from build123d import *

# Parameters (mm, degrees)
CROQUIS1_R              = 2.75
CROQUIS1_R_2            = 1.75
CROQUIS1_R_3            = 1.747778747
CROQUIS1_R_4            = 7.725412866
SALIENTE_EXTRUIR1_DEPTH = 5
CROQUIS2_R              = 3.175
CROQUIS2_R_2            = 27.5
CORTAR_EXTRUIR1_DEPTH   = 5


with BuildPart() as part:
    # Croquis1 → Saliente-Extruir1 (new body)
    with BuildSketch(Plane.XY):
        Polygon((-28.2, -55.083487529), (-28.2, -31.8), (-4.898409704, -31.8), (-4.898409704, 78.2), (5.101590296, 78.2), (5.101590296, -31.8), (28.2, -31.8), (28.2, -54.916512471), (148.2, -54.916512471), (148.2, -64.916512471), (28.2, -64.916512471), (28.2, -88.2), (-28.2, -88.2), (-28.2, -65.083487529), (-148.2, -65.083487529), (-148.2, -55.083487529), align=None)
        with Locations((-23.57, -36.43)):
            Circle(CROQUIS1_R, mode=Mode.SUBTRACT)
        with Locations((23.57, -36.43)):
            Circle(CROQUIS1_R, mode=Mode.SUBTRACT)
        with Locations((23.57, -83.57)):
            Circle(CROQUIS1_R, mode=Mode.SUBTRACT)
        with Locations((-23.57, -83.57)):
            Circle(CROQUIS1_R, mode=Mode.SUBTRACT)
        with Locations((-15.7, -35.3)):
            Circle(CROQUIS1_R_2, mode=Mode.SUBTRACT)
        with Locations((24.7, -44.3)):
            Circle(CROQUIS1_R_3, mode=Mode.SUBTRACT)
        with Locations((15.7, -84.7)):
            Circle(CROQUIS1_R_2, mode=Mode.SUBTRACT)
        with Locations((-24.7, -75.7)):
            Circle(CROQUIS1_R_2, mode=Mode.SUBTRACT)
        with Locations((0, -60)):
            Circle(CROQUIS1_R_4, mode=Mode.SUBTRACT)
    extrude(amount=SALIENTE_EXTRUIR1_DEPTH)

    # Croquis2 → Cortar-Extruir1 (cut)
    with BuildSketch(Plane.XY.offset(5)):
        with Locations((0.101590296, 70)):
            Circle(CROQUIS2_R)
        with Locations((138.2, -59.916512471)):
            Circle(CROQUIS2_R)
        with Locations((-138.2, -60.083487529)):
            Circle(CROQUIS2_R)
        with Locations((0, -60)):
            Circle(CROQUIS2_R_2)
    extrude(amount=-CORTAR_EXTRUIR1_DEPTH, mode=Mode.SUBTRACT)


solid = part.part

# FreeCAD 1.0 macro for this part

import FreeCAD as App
import Part
import Sketcher
Q = App.Units.Quantity

doc = App.newDocument("Part")
body = doc.addObject("PartDesign::Body", "Body")

sketch1 = doc.addObject("Sketcher::SketchObject", "Sketch")
body.addObject(sketch1)
sketch1.AttachmentSupport = (doc.XY_Plane, [""])
sketch1.MapMode = "FlatFace"
sketch1.addGeometry(Part.LineSegment(App.Vector(-28.2, -31.8, 0), App.Vector(-28.2, -55.1, 0)), False)
sketch1.addGeometry(Part.LineSegment(App.Vector(-28.2, -55.1, 0), App.Vector(-148.2, -55.1, 0)), False)
sketch1.addGeometry(Part.LineSegment(App.Vector(-148.2, -55.1, 0), App.Vector(-148.2, -65.1, 0)), False)
sketch1.addGeometry(Part.LineSegment(App.Vector(-148.2, -65.1, 0), App.Vector(-28.2, -65.1, 0)), False)
sketch1.addGeometry(Part.LineSegment(App.Vector(-28.2, -65.1, 0), App.Vector(-28.2, -88.2, 0)), False)
sketch1.addGeometry(Part.LineSegment(App.Vector(-28.2, -88.2, 0), App.Vector(28.2, -88.2, 0)), False)
sketch1.addGeometry(Part.LineSegment(App.Vector(28.2, -88.2, 0), App.Vector(28.2, -64.9, 0)), False)
sketch1.addGeometry(Part.LineSegment(App.Vector(28.2, -64.9, 0), App.Vector(148.2, -64.9, 0)), False)
sketch1.addGeometry(Part.LineSegment(App.Vector(148.2, -64.9, 0), App.Vector(148.2, -54.9, 0)), False)
sketch1.addGeometry(Part.LineSegment(App.Vector(148.2, -54.9, 0), App.Vector(28.2, -54.9, 0)), False)
sketch1.addGeometry(Part.LineSegment(App.Vector(28.2, -54.9, 0), App.Vector(28.2, -31.8, 0)), False)
sketch1.addGeometry(Part.LineSegment(App.Vector(28.2, -31.8, 0), App.Vector(5.1, -31.8, 0)), False)
sketch1.addGeometry(Part.LineSegment(App.Vector(5.1, -31.8, 0), App.Vector(5.1, 78.2, 0)), False)
sketch1.addGeometry(Part.LineSegment(App.Vector(5.1, 78.2, 0), App.Vector(-4.9, 78.2, 0)), False)
sketch1.addGeometry(Part.LineSegment(App.Vector(-4.9, 78.2, 0), App.Vector(-4.9, -31.8, 0)), False)
sketch1.addGeometry(Part.LineSegment(App.Vector(-4.9, -31.8, 0), App.Vector(-28.2, -31.8, 0)), False)
sketch1.addGeometry(Part.Circle(App.Vector(23.6, -83.6, 0), App.Vector(0, 0, 1), 2.8), False)
sketch1.addGeometry(Part.Circle(App.Vector(15.7, -84.7, 0), App.Vector(0, 0, 1), 1.8), False)
sketch1.addGeometry(Part.Circle(App.Vector(0, -60, 0), App.Vector(0, 0, 1), 7.7), False)
sketch1.addGeometry(Part.Circle(App.Vector(-23.6, -83.6, 0), App.Vector(0, 0, 1), 2.8), False)
sketch1.addGeometry(Part.Circle(App.Vector(-24.7, -75.7, 0), App.Vector(0, 0, 1), 1.8), False)
sketch1.addGeometry(Part.Circle(App.Vector(24.7, -44.3, 0), App.Vector(0, 0, 1), 1.7), False)
sketch1.addGeometry(Part.Circle(App.Vector(23.6, -36.4, 0), App.Vector(0, 0, 1), 2.8), False)
sketch1.addGeometry(Part.Circle(App.Vector(-15.7, -35.3, 0), App.Vector(0, 0, 1), 1.8), False)
sketch1.addGeometry(Part.Circle(App.Vector(-23.6, -36.4, 0), App.Vector(0, 0, 1), 2.8), False)
sketch1.addConstraint(Sketcher.Constraint("Coincident", 0, 2, 1, 1))
sketch1.addConstraint(Sketcher.Constraint("Coincident", 1, 2, 2, 1))
sketch1.addConstraint(Sketcher.Constraint("Coincident", 2, 2, 3, 1))
sketch1.addConstraint(Sketcher.Constraint("Coincident", 3, 2, 4, 1))
sketch1.addConstraint(Sketcher.Constraint("Coincident", 4, 2, 5, 1))
sketch1.addConstraint(Sketcher.Constraint("Coincident", 5, 2, 6, 1))
sketch1.addConstraint(Sketcher.Constraint("Coincident", 6, 2, 7, 1))
sketch1.addConstraint(Sketcher.Constraint("Coincident", 7, 2, 8, 1))
sketch1.addConstraint(Sketcher.Constraint("Coincident", 8, 2, 9, 1))
sketch1.addConstraint(Sketcher.Constraint("Coincident", 9, 2, 10, 1))
sketch1.addConstraint(Sketcher.Constraint("Coincident", 10, 2, 11, 1))
sketch1.addConstraint(Sketcher.Constraint("Coincident", 11, 2, 12, 1))
sketch1.addConstraint(Sketcher.Constraint("Coincident", 12, 2, 13, 1))
sketch1.addConstraint(Sketcher.Constraint("Coincident", 13, 2, 14, 1))
sketch1.addConstraint(Sketcher.Constraint("Coincident", 14, 2, 15, 1))
sketch1.addConstraint(Sketcher.Constraint("Coincident", 15, 2, 0, 1))
sketch1.addConstraint(Sketcher.Constraint("Vertical", 0))
sketch1.addConstraint(Sketcher.Constraint("Horizontal", 1))
sketch1.addConstraint(Sketcher.Constraint("Vertical", 2))
sketch1.addConstraint(Sketcher.Constraint("Horizontal", 3))
sketch1.addConstraint(Sketcher.Constraint("Vertical", 4))
sketch1.addConstraint(Sketcher.Constraint("Horizontal", 5))
sketch1.addConstraint(Sketcher.Constraint("Vertical", 6))
sketch1.addConstraint(Sketcher.Constraint("Horizontal", 7))
sketch1.addConstraint(Sketcher.Constraint("Vertical", 8))
sketch1.addConstraint(Sketcher.Constraint("Horizontal", 9))
sketch1.addConstraint(Sketcher.Constraint("Vertical", 10))
sketch1.addConstraint(Sketcher.Constraint("Horizontal", 11))
sketch1.addConstraint(Sketcher.Constraint("Vertical", 12))
sketch1.addConstraint(Sketcher.Constraint("Horizontal", 13))
sketch1.addConstraint(Sketcher.Constraint("Vertical", 14))
sketch1.addConstraint(Sketcher.Constraint("Horizontal", 15))
sketch1.addConstraint(Sketcher.Constraint("Equal", 16, 19))
sketch1.addConstraint(Sketcher.Constraint("Equal", 17, 20))
sketch1.addConstraint(Sketcher.Constraint("Equal", 19, 22))
sketch1.addConstraint(Sketcher.Constraint("Equal", 20, 23))
sketch1.addConstraint(Sketcher.Constraint("Equal", 22, 24))
sketch1.addConstraint(Sketcher.Constraint("Symmetric", 16, 3, 19, 3, -2))
sketch1.addConstraint(Sketcher.Constraint("Symmetric", 22, 3, 24, 3, -2))
sketch1.addConstraint(Sketcher.Constraint("Symmetric", 10, 2, 15, 2, -2))
sketch1.addConstraint(Sketcher.Constraint("PointOnObject", 18, 3, -2))
sketch1.addConstraint(Sketcher.Constraint("Vertical", 16, 3, 22, 3))
sketch1.addConstraint(Sketcher.Constraint("Vertical", 0, 2, 3, 2))
sketch1.addConstraint(Sketcher.Constraint("Vertical", 6, 2, 9, 2))
sketch1.addConstraint(Sketcher.Constraint("Equal", 3, 7))
sketch1.addConstraint(Sketcher.Constraint("Equal", 13, 2))
sketch1.addConstraint(Sketcher.Constraint("Equal", 0, 6))
sketch1.addConstraint(Sketcher.Constraint("Equal", 2, 8))
sketch1.addConstraint(Sketcher.Constraint("Diameter", 16, Q("5.5 mm")))
sketch1.addConstraint(Sketcher.Constraint("Diameter", 17, Q("3.5 mm")))
sketch1.addConstraint(Sketcher.Constraint("DistanceX", 1, 2, 1, 1, Q("120 mm")))
sketch1.addConstraint(Sketcher.Constraint("DistanceX", 13, 2, 13, 1, Q("10 mm")))
sketch1.addConstraint(Sketcher.Constraint("DistanceY", 12, 1, 12, 2, Q("110 mm")))
sketch1.addConstraint(Sketcher.Constraint("DistanceX", 5, 1, 5, 2, Q("56.4 mm")))
sketch1.addConstraint(Sketcher.Constraint("DistanceY", 18, 3, -1, 1, Q("60 mm")))
sketch1.addConstraint(Sketcher.Constraint("DistanceY", 17, 3, 20, 3, Q("9 mm")))
sketch1.addConstraint(Sketcher.Constraint("DistanceX", 17, 3, 21, 3, Q("9 mm")))
sketch1.addConstraint(Sketcher.Constraint("DistanceY", 21, 3, 23, 3, Q("9 mm")))
sketch1.addConstraint(Sketcher.Constraint("DistanceX", 20, 3, 23, 3, Q("9 mm")))
sketch1.addConstraint(Sketcher.Constraint("DistanceX", -1, 1, 17, 3, Q("15.7 mm")))
sketch1.addConstraint(Sketcher.Constraint("DistanceY", 17, 3, -1, 1, Q("84.7 mm")))
sketch1.addConstraint(Sketcher.Constraint("DistanceX", 20, 3, -1, 1, Q("24.7 mm")))
sketch1.addConstraint(Sketcher.Constraint("DistanceY", 21, 3, -1, 1, Q("44.3 mm")))
sketch1.addConstraint(Sketcher.Constraint("DistanceY", 4, 2, -1, 1, Q("88.2 mm")))
sketch1.addConstraint(Sketcher.Constraint("DistanceY", 10, 2, -1, 1, Q("31.8 mm")))
sketch1.addConstraint(Sketcher.Constraint("DistanceX", -1, 1, 16, 3, Q("23.57 mm")))
sketch1.addConstraint(Sketcher.Constraint("DistanceY", 16, 3, -1, 1, Q("83.57 mm")))
sketch1.addConstraint(Sketcher.Constraint("DistanceY", 22, 3, -1, 1, Q("36.43 mm")))
sketch1.addConstraint(Sketcher.Constraint("Diameter", 18, Q("15.450826 mm")))
sketch1.addConstraint(Sketcher.Constraint("Diameter", 21, Q("3.495557 mm")))
sketch1.addConstraint(Sketcher.Constraint("DistanceX", 11, 2, 11, 1, Q("23.09841 mm")))
sketch1.addConstraint(Sketcher.Constraint("DistanceY", 0, 2, 0, 1, Q("23.283488 mm")))
pad1 = doc.addObject("PartDesign::Pad", "Pad")
body.addObject(pad1)
pad1.Profile = sketch1
pad1.Length = 5

sketch2 = doc.addObject("Sketcher::SketchObject", "Sketch001")
body.addObject(sketch2)
sketch2.AttachmentSupport = (doc.XY_Plane, [""])
sketch2.MapMode = "FlatFace"
sketch2.AttachmentOffset = App.Placement(App.Vector(0, 0, 5), App.Rotation())
sketch2.addGeometry(Part.Circle(App.Vector(0.1, 70, 0), App.Vector(0, 0, 1), 3.2), False)
sketch2.addGeometry(Part.Circle(App.Vector(138.2, -59.9, 0), App.Vector(0, 0, 1), 3.2), False)
sketch2.addGeometry(Part.Circle(App.Vector(-138.2, -60.1, 0), App.Vector(0, 0, 1), 3.2), False)
sketch2.addGeometry(Part.Circle(App.Vector(0, -60, 0), App.Vector(0, 0, 1), 27.5), False)
sketch2.addConstraint(Sketcher.Constraint("Equal", 0, 1))
sketch2.addConstraint(Sketcher.Constraint("Equal", 1, 2))
sketch2.addConstraint(Sketcher.Constraint("PointOnObject", 3, 3, -2))
sketch2.addConstraint(Sketcher.Constraint("Diameter", 3, Q("55 mm")))
sketch2.addConstraint(Sketcher.Constraint("Diameter", 0, Q("6.35 mm")))
sketch2.addConstraint(Sketcher.Constraint("DistanceY", -1, 1, 0, 3, Q("70 mm")))
sketch2.addConstraint(Sketcher.Constraint("DistanceY", 3, 3, -1, 1, Q("60 mm")))
sketch2.addConstraint(Sketcher.Constraint("DistanceX", -1, 1, 1, 3, Q("138.2 mm")))
sketch2.addConstraint(Sketcher.Constraint("DistanceX", 2, 3, -1, 1, Q("138.2 mm")))
sketch2.addConstraint(Sketcher.Constraint("DistanceX", -1, 1, 0, 3, Q("0.10159 mm")))
sketch2.addConstraint(Sketcher.Constraint("DistanceY", 1, 3, -1, 1, Q("59.916512 mm")))
sketch2.addConstraint(Sketcher.Constraint("DistanceY", 2, 3, -1, 1, Q("60.083488 mm")))
pocket1 = doc.addObject("PartDesign::Pocket", "Pocket")
body.addObject(pocket1)
pocket1.Profile = sketch2
pocket1.Length = 5

doc.recompute()
